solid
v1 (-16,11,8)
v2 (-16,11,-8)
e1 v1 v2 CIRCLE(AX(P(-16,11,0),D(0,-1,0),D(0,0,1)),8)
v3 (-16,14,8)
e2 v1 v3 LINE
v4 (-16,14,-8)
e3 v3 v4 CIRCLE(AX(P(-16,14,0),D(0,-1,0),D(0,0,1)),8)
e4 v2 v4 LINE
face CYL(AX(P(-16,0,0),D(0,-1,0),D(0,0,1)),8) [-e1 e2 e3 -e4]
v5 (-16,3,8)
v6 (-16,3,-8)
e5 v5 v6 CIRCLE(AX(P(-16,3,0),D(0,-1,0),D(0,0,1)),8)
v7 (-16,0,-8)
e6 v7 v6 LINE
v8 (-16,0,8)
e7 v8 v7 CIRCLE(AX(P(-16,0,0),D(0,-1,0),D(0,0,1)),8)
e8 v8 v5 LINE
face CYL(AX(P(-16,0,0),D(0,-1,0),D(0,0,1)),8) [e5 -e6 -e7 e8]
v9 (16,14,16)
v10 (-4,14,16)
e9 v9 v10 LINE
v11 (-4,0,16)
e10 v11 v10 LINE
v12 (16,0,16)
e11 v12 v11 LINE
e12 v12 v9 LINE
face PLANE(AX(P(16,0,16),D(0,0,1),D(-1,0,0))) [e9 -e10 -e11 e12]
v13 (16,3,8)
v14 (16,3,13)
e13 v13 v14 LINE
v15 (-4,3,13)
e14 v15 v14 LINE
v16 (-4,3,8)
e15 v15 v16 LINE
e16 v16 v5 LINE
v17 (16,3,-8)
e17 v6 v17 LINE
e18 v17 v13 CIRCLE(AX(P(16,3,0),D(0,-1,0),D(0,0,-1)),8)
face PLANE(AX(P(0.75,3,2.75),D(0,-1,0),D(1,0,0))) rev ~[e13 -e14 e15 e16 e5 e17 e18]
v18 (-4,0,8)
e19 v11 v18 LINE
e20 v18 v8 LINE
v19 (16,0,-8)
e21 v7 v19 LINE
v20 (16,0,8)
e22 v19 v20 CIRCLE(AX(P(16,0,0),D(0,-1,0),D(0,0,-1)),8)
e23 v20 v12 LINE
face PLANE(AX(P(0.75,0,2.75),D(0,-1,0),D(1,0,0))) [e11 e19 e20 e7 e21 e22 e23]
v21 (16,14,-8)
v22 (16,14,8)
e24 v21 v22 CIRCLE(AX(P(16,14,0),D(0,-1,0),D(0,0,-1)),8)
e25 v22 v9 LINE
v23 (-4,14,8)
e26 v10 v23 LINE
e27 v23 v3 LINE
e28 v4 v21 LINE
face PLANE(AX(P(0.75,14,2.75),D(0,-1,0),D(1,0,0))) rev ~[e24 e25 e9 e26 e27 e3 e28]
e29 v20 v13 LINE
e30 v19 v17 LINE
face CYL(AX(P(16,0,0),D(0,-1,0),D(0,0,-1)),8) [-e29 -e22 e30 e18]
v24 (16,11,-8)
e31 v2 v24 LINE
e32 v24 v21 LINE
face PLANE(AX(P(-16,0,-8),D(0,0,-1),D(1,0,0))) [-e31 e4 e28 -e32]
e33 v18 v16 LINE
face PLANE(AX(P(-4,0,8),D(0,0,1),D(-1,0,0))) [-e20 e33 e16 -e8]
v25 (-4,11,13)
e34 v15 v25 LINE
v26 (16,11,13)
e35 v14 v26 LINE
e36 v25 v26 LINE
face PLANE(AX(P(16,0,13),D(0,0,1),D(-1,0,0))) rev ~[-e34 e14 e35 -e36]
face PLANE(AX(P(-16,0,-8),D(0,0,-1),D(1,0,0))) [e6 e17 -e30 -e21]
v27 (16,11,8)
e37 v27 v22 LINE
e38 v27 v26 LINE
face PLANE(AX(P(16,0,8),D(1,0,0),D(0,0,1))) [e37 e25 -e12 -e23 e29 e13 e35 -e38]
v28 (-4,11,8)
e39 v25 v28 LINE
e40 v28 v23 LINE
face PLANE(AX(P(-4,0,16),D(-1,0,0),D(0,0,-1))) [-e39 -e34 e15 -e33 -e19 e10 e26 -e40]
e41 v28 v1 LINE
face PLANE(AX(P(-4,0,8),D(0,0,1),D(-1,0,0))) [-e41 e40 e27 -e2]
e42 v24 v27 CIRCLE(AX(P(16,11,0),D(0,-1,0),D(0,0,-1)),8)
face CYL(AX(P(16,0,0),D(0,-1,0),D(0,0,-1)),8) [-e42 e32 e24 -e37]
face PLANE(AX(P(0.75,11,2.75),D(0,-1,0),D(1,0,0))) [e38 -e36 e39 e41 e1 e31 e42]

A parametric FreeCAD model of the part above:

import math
import FreeCAD as App
import Part
import Sketcher
Q = App.Units.Quantity


def faces_at(feature, points):
    """Names of the faces that lie closest to the given points."""
    faces = feature.Shape.Faces
    near = lambda p: min(range(len(faces)), key=lambda i: faces[i].distToShape(Part.Vertex(*p))[0])
    return sorted({f"Face{near(p) + 1}" for p in points})

doc = App.newDocument("Part")
body = doc.addObject("PartDesign::Body", "Body")

# Sketch on XZ plane
sketch1 = body.newObject("Sketcher::SketchObject", "Sketch")
sketch1.AttachmentSupport = (doc.getObject("XZ_Plane"), [""])
sketch1.MapMode = "FlatFace"
sketch1.addGeometry(Part.ArcOfCircle(Part.Circle(App.Vector(-16, 0, 0), App.Vector(0, 0, 1), 8), math.radians(90), math.radians(270)), False)
sketch1.addGeometry(Part.LineSegment(App.Vector(-16, -8, 0), App.Vector(16, -8, 0)), False)
sketch1.addGeometry(Part.ArcOfCircle(Part.Circle(App.Vector(16, 0, 0), App.Vector(0, 0, 1), 8), math.radians(-90), math.radians(90)), False)
sketch1.addGeometry(Part.LineSegment(App.Vector(16, 8, 0), App.Vector(16, 16, 0)), False)
sketch1.addGeometry(Part.LineSegment(App.Vector(16, 16, 0), App.Vector(-4, 16, 0)), False)
sketch1.addGeometry(Part.LineSegment(App.Vector(-4, 16, 0), App.Vector(-4, 8, 0)), False)
sketch1.addGeometry(Part.LineSegment(App.Vector(-4, 8, 0), App.Vector(-16, 8, 0)), False)
sketch1.addConstraint(Sketcher.Constraint("Tangent", 0, 2, 1, 1))
sketch1.addConstraint(Sketcher.Constraint("Tangent", 1, 2, 2, 1))
sketch1.addConstraint(Sketcher.Constraint("Coincident", 2, 2, 3, 1))
sketch1.addConstraint(Sketcher.Constraint("Coincident", 3, 2, 4, 1))
sketch1.addConstraint(Sketcher.Constraint("Coincident", 4, 2, 5, 1))
sketch1.addConstraint(Sketcher.Constraint("Coincident", 5, 2, 6, 1))
sketch1.addConstraint(Sketcher.Constraint("Tangent", 6, 2, 0, 1))
sketch1.addConstraint(Sketcher.Constraint("Horizontal", 1))
sketch1.addConstraint(Sketcher.Constraint("Vertical", 3))
sketch1.addConstraint(Sketcher.Constraint("Horizontal", 4))
sketch1.addConstraint(Sketcher.Constraint("Vertical", 5))
sketch1.addConstraint(Sketcher.Constraint("Horizontal", 6))
sketch1.addConstraint(Sketcher.Constraint("Equal", 0, 2))
sketch1.addConstraint(Sketcher.Constraint("Symmetric", 0, 3, 2, 3, -1, 1))
sketch1.addConstraint(Sketcher.Constraint("Vertical", 1, 2, 2, 2))
sketch1.addConstraint(Sketcher.Constraint("Radius", 0, Q("8 mm")))
sketch1.addConstraint(Sketcher.Constraint("DistanceX", 1, 1, 1, 2, Q("32 mm")))
sketch1.addConstraint(Sketcher.Constraint("DistanceX", 4, 2, 4, 1, Q("20 mm")))
sketch1.addConstraint(Sketcher.Constraint("DistanceY", 3, 1, 3, 2, Q("8 mm")))
pad1 = body.newObject("PartDesign::Pad", "Pad")
pad1.Profile = sketch1
pad1.Length = 14
pad1.Reversed = True
doc.recompute()

thickness = body.newObject("PartDesign::Thickness", "Thickness")
thickness.Base = (pad1, faces_at(pad1, [
    (-10, 7, 8),
    (-4, 7, 12),
    (24, 7, 0),
    (-24, 7, 0),
    (0, 7, -8),
    (16, 7, 12),
]))
thickness.Value = 3
thickness.Reversed = True
thickness.Join = "Arc"

doc.recompute()
